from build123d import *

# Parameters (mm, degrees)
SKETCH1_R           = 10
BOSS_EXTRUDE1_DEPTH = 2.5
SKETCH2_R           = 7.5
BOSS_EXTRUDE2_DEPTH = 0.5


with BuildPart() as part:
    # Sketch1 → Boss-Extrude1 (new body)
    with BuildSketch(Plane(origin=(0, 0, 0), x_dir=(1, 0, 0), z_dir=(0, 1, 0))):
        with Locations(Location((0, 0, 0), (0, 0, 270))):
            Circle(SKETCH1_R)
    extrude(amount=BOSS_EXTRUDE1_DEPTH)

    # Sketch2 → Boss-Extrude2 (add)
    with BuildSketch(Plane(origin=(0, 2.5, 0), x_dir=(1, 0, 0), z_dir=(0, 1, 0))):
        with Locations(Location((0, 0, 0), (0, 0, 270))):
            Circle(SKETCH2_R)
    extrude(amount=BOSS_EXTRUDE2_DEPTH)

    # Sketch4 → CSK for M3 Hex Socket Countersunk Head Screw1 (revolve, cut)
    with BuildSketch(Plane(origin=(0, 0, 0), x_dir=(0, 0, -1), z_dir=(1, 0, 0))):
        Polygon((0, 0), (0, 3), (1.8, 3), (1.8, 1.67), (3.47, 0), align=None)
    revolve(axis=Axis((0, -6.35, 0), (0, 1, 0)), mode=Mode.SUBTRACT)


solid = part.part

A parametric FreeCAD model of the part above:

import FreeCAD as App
import Part
import Sketcher

V = App.Vector
Q = App.Units.Quantity

doc = App.newDocument("Part")
body = doc.addObject("PartDesign::Body", "Body")

# Sketch on XZ plane
sketch1 = doc.addObject("Sketcher::SketchObject", "Sketch")
body.addObject(sketch1)
sketch1.AttachmentSupport = (doc.XZ_Plane, [""])
sketch1.MapMode = "FlatFace"
sketch1.addGeometry(Part.Circle(V(0, 0, 0), V(0, 0, 1), 10), False)
sketch1.addConstraint(Sketcher.Constraint("Coincident", 0, 3, -1, 1))
sketch1.addConstraint(Sketcher.Constraint("Diameter", 0, Q("20 mm")))
pad1 = doc.addObject("PartDesign::Pad", "Pad")
body.addObject(pad1)
pad1.Profile = sketch1
pad1.Length = 2.5
pad1.Reversed = True

# Sketch on XZ plane
sketch2 = doc.addObject("Sketcher::SketchObject", "Sketch001")
body.addObject(sketch2)
sketch2.AttachmentSupport = (doc.XZ_Plane, [""])
sketch2.MapMode = "FlatFace"
sketch2.AttachmentOffset = App.Placement(V(0, 0, -2.5), App.Rotation())
sketch2.addGeometry(Part.Circle(V(0, 0, 0), V(0, 0, 1), 8), False)
sketch2.addConstraint(Sketcher.Constraint("Coincident", 0, 3, -1, 1))
sketch2.addConstraint(Sketcher.Constraint("Diameter", 0, Q("15 mm")))
pad2 = doc.addObject("PartDesign::Pad", "Pad001")
body.addObject(pad2)
pad2.Profile = sketch2
pad2.Length = 0.5
pad2.Reversed = True

# Sketch on YZ plane
sketch3 = doc.addObject("Sketcher::SketchObject", "Sketch002")
body.addObject(sketch3)
sketch3.AttachmentSupport = (doc.YZ_Plane, [""])
sketch3.MapMode = "FlatFace"
sketch3.addGeometry(Part.LineSegment(V(3, 0, 0), V(0, 0, 0)), False)
sketch3.addGeometry(Part.LineSegment(V(0, 0, 0), V(0, -3.5, 0)), False)
sketch3.addGeometry(Part.LineSegment(V(0, -3.5, 0), V(1.7, -1.8, 0)), False)
sketch3.addGeometry(Part.LineSegment(V(1.7, -1.8, 0), V(3, -1.8, 0)), False)
sketch3.addGeometry(Part.LineSegment(V(3, -1.8, 0), V(3, 0, 0)), False)
sketch3.addConstraint(Sketcher.Constraint("Coincident", 0, 2, 1, 1))
sketch3.addConstraint(Sketcher.Constraint("Coincident", 1, 2, 2, 1))
sketch3.addConstraint(Sketcher.Constraint("Coincident", 2, 2, 3, 1))
sketch3.addConstraint(Sketcher.Constraint("Coincident", 3, 2, 4, 1))
sketch3.addConstraint(Sketcher.Constraint("Coincident", 4, 2, 0, 1))
sketch3.addConstraint(Sketcher.Constraint("Horizontal", 0))
sketch3.addConstraint(Sketcher.Constraint("Vertical", 1))
sketch3.addConstraint(Sketcher.Constraint("Horizontal", 3))
sketch3.addConstraint(Sketcher.Constraint("Vertical", 4))
sketch3.addConstraint(Sketcher.Constraint("Coincident", 0, 2, -1, 1))
sketch3.addConstraint(Sketcher.Constraint("DistanceX", 0, 2, 0, 1, Q("3 mm")))
sketch3.addConstraint(Sketcher.Constraint("Angle", 2, Q("45 deg")))
sketch3.addConstraint(Sketcher.Constraint("DistanceY", 4, 1, 4, 2, Q("1.8 mm")))
sketch3.addConstraint(Sketcher.Constraint("DistanceX", 3, 1, 3, 2, Q("1.33 mm")))
groove = doc.addObject("PartDesign::Groove", "Groove")
body.addObject(groove)
groove.Profile = sketch3
groove.ReferenceAxis = (sketch3, ["H_Axis"])
groove.Angle = 360

doc.recompute()
